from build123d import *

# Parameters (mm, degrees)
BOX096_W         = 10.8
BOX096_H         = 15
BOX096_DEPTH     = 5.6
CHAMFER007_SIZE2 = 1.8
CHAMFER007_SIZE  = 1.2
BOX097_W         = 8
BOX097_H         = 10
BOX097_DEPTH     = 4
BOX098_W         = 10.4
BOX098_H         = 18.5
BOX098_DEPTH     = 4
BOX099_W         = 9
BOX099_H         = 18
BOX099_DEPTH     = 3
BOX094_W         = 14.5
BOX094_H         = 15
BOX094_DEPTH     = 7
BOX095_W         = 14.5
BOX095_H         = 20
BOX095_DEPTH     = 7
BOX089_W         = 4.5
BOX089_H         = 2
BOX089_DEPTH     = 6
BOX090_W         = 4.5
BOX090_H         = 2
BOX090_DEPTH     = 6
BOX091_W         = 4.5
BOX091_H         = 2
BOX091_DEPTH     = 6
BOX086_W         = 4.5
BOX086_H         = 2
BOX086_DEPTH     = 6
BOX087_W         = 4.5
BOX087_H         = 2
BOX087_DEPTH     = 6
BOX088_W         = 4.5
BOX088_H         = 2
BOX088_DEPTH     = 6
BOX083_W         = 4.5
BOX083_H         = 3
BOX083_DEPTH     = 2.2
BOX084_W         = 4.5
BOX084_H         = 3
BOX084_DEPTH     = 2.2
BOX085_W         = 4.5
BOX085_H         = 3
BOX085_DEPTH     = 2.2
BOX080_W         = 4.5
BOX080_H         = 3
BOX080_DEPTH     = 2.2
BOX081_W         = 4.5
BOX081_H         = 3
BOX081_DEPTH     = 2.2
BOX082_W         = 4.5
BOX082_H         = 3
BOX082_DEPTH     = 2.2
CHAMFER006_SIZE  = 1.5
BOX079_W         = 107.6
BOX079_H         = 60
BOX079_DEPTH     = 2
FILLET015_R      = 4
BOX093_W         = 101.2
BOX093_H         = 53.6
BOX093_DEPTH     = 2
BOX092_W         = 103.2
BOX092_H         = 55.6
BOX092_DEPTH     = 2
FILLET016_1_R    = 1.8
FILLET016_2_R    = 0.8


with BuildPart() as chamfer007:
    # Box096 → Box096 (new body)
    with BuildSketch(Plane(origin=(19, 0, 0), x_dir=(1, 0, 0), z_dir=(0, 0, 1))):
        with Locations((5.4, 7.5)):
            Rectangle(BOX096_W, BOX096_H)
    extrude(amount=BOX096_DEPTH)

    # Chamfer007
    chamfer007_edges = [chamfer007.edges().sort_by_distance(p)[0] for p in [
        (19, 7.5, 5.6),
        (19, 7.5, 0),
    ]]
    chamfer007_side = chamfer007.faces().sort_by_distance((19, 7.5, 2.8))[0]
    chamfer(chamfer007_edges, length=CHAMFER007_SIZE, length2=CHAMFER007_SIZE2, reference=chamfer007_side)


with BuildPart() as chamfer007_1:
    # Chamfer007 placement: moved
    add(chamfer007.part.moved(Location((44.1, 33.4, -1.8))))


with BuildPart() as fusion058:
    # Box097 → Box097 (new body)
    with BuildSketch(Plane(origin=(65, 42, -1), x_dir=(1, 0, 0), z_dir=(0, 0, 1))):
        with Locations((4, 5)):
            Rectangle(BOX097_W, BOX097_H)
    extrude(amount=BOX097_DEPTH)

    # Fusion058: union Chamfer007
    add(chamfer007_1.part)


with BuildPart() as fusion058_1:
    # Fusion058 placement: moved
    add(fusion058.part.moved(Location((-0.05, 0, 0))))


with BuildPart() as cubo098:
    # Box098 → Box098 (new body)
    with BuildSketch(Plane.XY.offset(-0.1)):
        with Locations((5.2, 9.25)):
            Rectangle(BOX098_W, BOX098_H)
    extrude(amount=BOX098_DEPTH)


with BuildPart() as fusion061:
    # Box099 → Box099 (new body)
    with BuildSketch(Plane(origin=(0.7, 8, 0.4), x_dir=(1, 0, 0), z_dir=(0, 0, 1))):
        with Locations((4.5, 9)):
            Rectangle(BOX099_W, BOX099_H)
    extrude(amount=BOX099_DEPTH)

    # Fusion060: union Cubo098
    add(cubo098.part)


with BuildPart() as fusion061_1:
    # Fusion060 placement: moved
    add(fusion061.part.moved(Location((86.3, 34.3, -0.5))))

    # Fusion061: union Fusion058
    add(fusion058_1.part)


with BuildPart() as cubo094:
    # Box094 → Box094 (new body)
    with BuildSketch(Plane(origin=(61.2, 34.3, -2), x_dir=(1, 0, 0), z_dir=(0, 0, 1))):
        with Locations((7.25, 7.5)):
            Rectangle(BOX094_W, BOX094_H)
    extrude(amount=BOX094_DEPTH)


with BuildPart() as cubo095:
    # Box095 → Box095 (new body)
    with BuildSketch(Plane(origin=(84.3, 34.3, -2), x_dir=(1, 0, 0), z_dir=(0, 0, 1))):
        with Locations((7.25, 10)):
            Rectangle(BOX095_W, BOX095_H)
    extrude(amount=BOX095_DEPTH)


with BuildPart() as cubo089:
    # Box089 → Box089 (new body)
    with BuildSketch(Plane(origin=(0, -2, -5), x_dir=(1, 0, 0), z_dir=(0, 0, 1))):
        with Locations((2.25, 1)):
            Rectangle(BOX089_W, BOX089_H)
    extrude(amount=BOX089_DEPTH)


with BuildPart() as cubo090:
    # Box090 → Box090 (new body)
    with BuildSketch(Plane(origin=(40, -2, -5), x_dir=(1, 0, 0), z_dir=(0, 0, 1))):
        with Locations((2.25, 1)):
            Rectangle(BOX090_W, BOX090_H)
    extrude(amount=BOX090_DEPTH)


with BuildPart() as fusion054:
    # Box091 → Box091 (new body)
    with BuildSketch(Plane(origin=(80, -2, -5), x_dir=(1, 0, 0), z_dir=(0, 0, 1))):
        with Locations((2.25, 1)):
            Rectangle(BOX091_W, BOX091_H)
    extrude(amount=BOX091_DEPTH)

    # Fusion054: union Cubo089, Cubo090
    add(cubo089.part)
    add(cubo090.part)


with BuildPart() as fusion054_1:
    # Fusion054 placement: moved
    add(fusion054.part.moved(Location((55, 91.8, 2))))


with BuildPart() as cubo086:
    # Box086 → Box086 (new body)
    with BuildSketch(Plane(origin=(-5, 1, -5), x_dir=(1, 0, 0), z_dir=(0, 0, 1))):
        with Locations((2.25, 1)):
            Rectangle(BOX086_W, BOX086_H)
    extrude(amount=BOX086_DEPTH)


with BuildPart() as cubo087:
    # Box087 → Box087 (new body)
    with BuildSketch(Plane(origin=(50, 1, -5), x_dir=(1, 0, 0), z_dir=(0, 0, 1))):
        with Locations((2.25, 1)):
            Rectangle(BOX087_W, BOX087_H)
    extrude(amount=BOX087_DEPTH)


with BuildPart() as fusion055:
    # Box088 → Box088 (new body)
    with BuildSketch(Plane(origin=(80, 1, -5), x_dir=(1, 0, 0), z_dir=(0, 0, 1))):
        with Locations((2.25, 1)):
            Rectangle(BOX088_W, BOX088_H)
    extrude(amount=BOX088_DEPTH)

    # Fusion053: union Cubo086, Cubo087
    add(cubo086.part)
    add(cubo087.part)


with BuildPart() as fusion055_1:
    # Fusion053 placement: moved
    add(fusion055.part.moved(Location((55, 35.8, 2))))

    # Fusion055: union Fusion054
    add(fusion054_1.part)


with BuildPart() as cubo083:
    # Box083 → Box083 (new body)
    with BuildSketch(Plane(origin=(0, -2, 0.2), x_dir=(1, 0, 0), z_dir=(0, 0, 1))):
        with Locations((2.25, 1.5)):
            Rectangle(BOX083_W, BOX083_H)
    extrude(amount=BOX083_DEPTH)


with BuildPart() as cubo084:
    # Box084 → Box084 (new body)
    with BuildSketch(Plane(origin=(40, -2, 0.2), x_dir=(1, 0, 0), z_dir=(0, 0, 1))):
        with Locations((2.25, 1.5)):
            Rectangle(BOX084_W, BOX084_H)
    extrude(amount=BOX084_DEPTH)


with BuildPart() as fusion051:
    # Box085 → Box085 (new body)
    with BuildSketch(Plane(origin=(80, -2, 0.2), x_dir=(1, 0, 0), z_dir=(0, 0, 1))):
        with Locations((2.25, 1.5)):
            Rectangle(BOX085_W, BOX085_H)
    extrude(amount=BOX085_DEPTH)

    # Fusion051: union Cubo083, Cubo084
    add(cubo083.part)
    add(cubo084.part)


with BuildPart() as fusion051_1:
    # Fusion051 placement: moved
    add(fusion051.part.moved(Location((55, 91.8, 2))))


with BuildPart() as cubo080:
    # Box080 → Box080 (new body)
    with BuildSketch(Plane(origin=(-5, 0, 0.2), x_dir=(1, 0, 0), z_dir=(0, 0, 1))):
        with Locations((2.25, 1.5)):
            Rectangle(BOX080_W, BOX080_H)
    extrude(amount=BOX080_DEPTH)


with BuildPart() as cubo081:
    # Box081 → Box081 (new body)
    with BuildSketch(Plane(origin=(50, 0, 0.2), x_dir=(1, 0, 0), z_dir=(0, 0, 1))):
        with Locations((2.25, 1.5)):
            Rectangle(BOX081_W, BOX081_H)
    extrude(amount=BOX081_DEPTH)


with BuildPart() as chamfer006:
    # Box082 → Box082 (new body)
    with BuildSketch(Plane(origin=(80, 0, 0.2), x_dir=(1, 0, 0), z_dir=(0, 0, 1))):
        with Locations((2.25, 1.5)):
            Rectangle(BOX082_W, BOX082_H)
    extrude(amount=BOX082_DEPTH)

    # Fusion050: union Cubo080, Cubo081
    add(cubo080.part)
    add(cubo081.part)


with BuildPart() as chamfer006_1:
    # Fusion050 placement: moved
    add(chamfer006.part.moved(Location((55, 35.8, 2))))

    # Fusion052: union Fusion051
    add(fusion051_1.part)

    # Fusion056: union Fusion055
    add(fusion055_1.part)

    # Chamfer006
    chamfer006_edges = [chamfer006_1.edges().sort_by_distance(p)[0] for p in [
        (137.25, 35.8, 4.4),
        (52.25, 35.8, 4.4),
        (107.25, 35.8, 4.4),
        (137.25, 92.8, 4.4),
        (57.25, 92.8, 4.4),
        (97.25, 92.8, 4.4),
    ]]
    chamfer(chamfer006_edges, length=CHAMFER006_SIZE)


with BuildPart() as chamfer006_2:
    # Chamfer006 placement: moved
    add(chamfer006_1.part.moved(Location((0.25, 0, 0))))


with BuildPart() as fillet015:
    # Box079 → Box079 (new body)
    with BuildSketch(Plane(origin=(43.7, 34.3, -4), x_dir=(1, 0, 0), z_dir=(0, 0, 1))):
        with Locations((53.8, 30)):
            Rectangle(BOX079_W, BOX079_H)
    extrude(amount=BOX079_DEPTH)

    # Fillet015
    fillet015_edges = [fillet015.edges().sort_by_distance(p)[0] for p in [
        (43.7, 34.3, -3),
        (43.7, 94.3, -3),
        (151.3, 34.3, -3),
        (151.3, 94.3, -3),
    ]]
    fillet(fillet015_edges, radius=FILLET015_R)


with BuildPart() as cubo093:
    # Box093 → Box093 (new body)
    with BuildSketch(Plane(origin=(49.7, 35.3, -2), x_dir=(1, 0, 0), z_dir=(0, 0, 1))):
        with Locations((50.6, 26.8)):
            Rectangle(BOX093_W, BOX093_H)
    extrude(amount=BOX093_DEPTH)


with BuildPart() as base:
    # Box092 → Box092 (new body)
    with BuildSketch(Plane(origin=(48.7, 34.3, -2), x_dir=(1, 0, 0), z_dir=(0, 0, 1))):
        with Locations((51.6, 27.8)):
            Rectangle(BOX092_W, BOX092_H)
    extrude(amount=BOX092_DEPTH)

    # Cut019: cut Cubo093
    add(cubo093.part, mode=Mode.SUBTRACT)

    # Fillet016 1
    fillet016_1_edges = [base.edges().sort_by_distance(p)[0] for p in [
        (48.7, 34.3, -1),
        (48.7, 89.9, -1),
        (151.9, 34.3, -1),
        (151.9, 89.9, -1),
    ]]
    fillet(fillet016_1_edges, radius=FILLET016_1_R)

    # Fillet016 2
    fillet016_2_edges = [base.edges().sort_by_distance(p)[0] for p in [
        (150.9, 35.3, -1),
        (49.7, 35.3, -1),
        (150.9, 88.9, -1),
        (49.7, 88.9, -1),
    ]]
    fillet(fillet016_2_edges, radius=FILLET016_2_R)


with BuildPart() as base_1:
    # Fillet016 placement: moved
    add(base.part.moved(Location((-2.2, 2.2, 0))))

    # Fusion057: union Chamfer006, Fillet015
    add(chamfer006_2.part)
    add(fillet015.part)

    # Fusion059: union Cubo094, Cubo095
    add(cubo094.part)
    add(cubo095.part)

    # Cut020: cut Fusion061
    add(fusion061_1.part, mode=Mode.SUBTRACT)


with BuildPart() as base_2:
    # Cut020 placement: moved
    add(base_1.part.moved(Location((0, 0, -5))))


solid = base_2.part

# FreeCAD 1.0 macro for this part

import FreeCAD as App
import Part
import Sketcher

V = App.Vector


def edges_at(feature, points):
    """Names of the edges that pass closest to the given points."""
    edges = feature.Shape.Edges
    near = lambda p: min(range(len(edges)), key=lambda i: edges[i].distToShape(Part.Vertex(*p))[0])
    return sorted({f"Edge{near(p) + 1}" for p in points})


def add_polygon(sketch, points):
    """Adds a closed chain of lines whose ends are joined by coincident constraints."""
    first, n = sketch.GeometryCount, len(points)
    for a, b in zip(points, points[1:] + points[:1]):
        sketch.addGeometry(Part.LineSegment(App.Vector(*a, 0), App.Vector(*b, 0)), False)
    for i in range(n):
        sketch.addConstraint(Sketcher.Constraint("Coincident", first + i, 2, first + (i + 1) % n, 1))

doc = App.newDocument("Part")
body = doc.addObject("PartDesign::Body", "Body")

sketch1 = doc.addObject("Sketcher::SketchObject", "Sketch")
body.addObject(sketch1)
sketch1.AttachmentSupport = (doc.XY_Plane, [""])
sketch1.MapMode = "FlatFace"
add_polygon(sketch1, [(19, 15), (19, 0), (30, 0), (30, 15)])
sketch1.addConstraint([
    Sketcher.Constraint("Vertical", 0),
    Sketcher.Constraint("Horizontal", 1),
    Sketcher.Constraint("Vertical", 2),
    Sketcher.Constraint("Horizontal", 3),
    Sketcher.Constraint("PointOnObject", 0, 2, -1),
    Sketcher.Constraint("DistanceY", 0, 2, 0, 1, 15.0),
    Sketcher.Constraint("DistanceX", 1, 1, 1, 2, 10.8),
    Sketcher.Constraint("DistanceX", -1, 1, 0, 2, 19.0),
])
pad1 = doc.addObject("PartDesign::Pad", "Pad")
body.addObject(pad1)
pad1.Profile = sketch1
pad1.Length = 5.6
doc.recompute()

chamfer = doc.addObject("PartDesign::Chamfer", "Chamfer")
body.addObject(chamfer)
chamfer.Base = (pad1, edges_at(pad1, [(19, 7.5, 5.6), (19, 7.5, 0)]))
chamfer.ChamferType = "Two distances"
chamfer.Size = 1.2
chamfer.Size2 = 1.8
body2 = doc.addObject("PartDesign::Body", "Body001")
doc.recompute()

body.Placement = App.Placement(V(44.1, 33.4, -1.8), App.Rotation(V(0, 0, 1), 0))
boolean = doc.addObject("PartDesign::Boolean", "Boolean")
body2.addObject(boolean)
boolean.Type = "Fuse"
boolean.addObjects([body])
body3 = doc.addObject("PartDesign::Body", "Body002")

sketch2 = doc.addObject("Sketcher::SketchObject", "Sketch001")
body3.addObject(sketch2)
sketch2.AttachmentSupport = (doc.getObject("XY_Plane002"), [""])
sketch2.MapMode = "FlatFace"
sketch2.AttachmentOffset = App.Placement(V(0, 0, -1), App.Rotation())
add_polygon(sketch2, [(65, 52), (65, 42), (73, 42), (73, 52)])
sketch2.addConstraint([
    Sketcher.Constraint("Vertical", 0),
    Sketcher.Constraint("Horizontal", 1),
    Sketcher.Constraint("Vertical", 2),
    Sketcher.Constraint("Horizontal", 3),
    Sketcher.Constraint("DistanceX", 1, 1, 1, 2, 8.0),
    Sketcher.Constraint("DistanceY", 0, 2, 0, 1, 10.0),
    Sketcher.Constraint("DistanceX", -1, 1, 0, 2, 65.0),
    Sketcher.Constraint("DistanceY", -1, 1, 0, 2, 42.0),
])
pad2 = doc.addObject("PartDesign::Pad", "Pad001")
body3.addObject(pad2)
pad2.Profile = sketch2
pad2.Length = 4
doc.recompute()

boolean2 = doc.addObject("PartDesign::Boolean", "Boolean001")
body3.addObject(boolean2)
boolean2.Type = "Fuse"
boolean2.addObjects([body2])
body4 = doc.addObject("PartDesign::Body", "Body003")
doc.recompute()

body3.Placement = App.Placement(V(-0.05, 0, 0), App.Rotation(V(0, 0, 1), 0))
boolean3 = doc.addObject("PartDesign::Boolean", "Boolean002")
body4.addObject(boolean3)
boolean3.Type = "Fuse"
boolean3.addObjects([body3])
body5 = doc.addObject("PartDesign::Body", "Body004")

sketch3 = doc.addObject("Sketcher::SketchObject", "Sketch002")
body5.addObject(sketch3)
sketch3.AttachmentSupport = (doc.getObject("XY_Plane004"), [""])
sketch3.MapMode = "FlatFace"
sketch3.AttachmentOffset = App.Placement(V(0, 0, -0.1), App.Rotation())
add_polygon(sketch3, [(0, 18), (0, 0), (10, 0), (10, 18)])
sketch3.addConstraint([
    Sketcher.Constraint("Vertical", 0),
    Sketcher.Constraint("Horizontal", 1),
    Sketcher.Constraint("Vertical", 2),
    Sketcher.Constraint("Horizontal", 3),
    Sketcher.Constraint("Coincident", 0, 2, -1, 1),
    Sketcher.Constraint("DistanceX", 1, 1, 1, 2, 10.4),
    Sketcher.Constraint("DistanceY", 0, 2, 0, 1, 18.5),
])
pad3 = doc.addObject("PartDesign::Pad", "Pad002")
body5.addObject(pad3)
pad3.Profile = sketch3
pad3.Length = 4
body6 = doc.addObject("PartDesign::Body", "Body005")

sketch4 = doc.addObject("Sketcher::SketchObject", "Sketch003")
body6.addObject(sketch4)
sketch4.AttachmentSupport = (doc.getObject("XY_Plane005"), [""])
sketch4.MapMode = "FlatFace"
sketch4.AttachmentOffset = App.Placement(V(0, 0, 0.4), App.Rotation())
add_polygon(sketch4, [(1, 26), (1, 8), (10, 8), (10, 26)])
sketch4.addConstraint([
    Sketcher.Constraint("Vertical", 0),
    Sketcher.Constraint("Horizontal", 1),
    Sketcher.Constraint("Vertical", 2),
    Sketcher.Constraint("Horizontal", 3),
    Sketcher.Constraint("DistanceX", 1, 1, 1, 2, 9.0),
    Sketcher.Constraint("DistanceY", 0, 2, 0, 1, 18.0),
    Sketcher.Constraint("DistanceY", -1, 1, 0, 2, 8.0),
    Sketcher.Constraint("DistanceX", -1, 1, 0, 2, 0.7),
])
pad4 = doc.addObject("PartDesign::Pad", "Pad003")
body6.addObject(pad4)
pad4.Profile = sketch4
pad4.Length = 3
doc.recompute()

boolean4 = doc.addObject("PartDesign::Boolean", "Boolean003")
body6.addObject(boolean4)
boolean4.Type = "Fuse"
boolean4.addObjects([body5])
body7 = doc.addObject("PartDesign::Body", "Body006")
body7.AllowCompound = True
doc.recompute()

body6.Placement = App.Placement(V(86.3, 34.3, -0.5), App.Rotation(V(0, 0, 1), 0))
boolean5 = doc.addObject("PartDesign::Boolean", "Boolean004")
body7.addObject(boolean5)
boolean5.Type = "Fuse"
boolean5.addObjects([body6])
doc.recompute()

boolean6 = doc.addObject("PartDesign::Boolean", "Boolean005")
body7.addObject(boolean6)
boolean6.Type = "Fuse"
boolean6.addObjects([body4])
body8 = doc.addObject("PartDesign::Body", "Body007")

sketch5 = doc.addObject("Sketcher::SketchObject", "Sketch004")
body8.addObject(sketch5)
sketch5.AttachmentSupport = (doc.getObject("XY_Plane007"), [""])
sketch5.MapMode = "FlatFace"
sketch5.AttachmentOffset = App.Placement(V(0, 0, -2), App.Rotation())
add_polygon(sketch5, [(61, 49), (61, 34), (76, 34), (76, 49)])
sketch5.addConstraint([
    Sketcher.Constraint("Vertical", 0),
    Sketcher.Constraint("Horizontal", 1),
    Sketcher.Constraint("Vertical", 2),
    Sketcher.Constraint("Horizontal", 3),
    Sketcher.Constraint("DistanceY", 0, 2, 0, 1, 15.0),
    Sketcher.Constraint("DistanceX", 1, 1, 1, 2, 14.5),
    Sketcher.Constraint("DistanceX", -1, 1, 0, 2, 61.2),
    Sketcher.Constraint("DistanceY", -1, 1, 0, 2, 34.3),
])
pad5 = doc.addObject("PartDesign::Pad", "Pad004")
body8.addObject(pad5)
pad5.Profile = sketch5
pad5.Length = 7
body9 = doc.addObject("PartDesign::Body", "Body008")

sketch6 = doc.addObject("Sketcher::SketchObject", "Sketch005")
body9.addObject(sketch6)
sketch6.AttachmentSupport = (doc.getObject("XY_Plane008"), [""])
sketch6.MapMode = "FlatFace"
sketch6.AttachmentOffset = App.Placement(V(0, 0, -2), App.Rotation())
add_polygon(sketch6, [(84, 54), (84, 34), (99, 34), (99, 54)])
sketch6.addConstraint([
    Sketcher.Constraint("Vertical", 0),
    Sketcher.Constraint("Horizontal", 1),
    Sketcher.Constraint("Vertical", 2),
    Sketcher.Constraint("Horizontal", 3),
    Sketcher.Constraint("DistanceY", 0, 2, 0, 1, 20.0),
    Sketcher.Constraint("DistanceX", 1, 1, 1, 2, 14.5),
    Sketcher.Constraint("DistanceX", -1, 1, 0, 2, 84.3),
    Sketcher.Constraint("DistanceY", -1, 1, 0, 2, 34.3),
])
pad6 = doc.addObject("PartDesign::Pad", "Pad005")
body9.addObject(pad6)
pad6.Profile = sketch6
pad6.Length = 7
body10 = doc.addObject("PartDesign::Body", "Body009")

sketch7 = doc.addObject("Sketcher::SketchObject", "Sketch006")
body10.addObject(sketch7)
sketch7.AttachmentSupport = (doc.getObject("XY_Plane009"), [""])
sketch7.MapMode = "FlatFace"
sketch7.AttachmentOffset = App.Placement(V(0, 0, -5), App.Rotation())
add_polygon(sketch7, [(0, 0), (0, -2), (4.5, -2), (4.5, 0)])
sketch7.addConstraint([
    Sketcher.Constraint("Vertical", 0),
    Sketcher.Constraint("Horizontal", 1),
    Sketcher.Constraint("Vertical", 2),
    Sketcher.Constraint("Horizontal", 3),
    Sketcher.Constraint("Coincident", 3, 2, -1, 1),
    Sketcher.Constraint("DistanceY", 0, 2, 0, 1, 2.0),
    Sketcher.Constraint("DistanceX", 1, 1, 1, 2, 4.5),
])
pad7 = doc.addObject("PartDesign::Pad", "Pad006")
body10.addObject(pad7)
pad7.Profile = sketch7
pad7.Length = 6
body11 = doc.addObject("PartDesign::Body", "Body010")

sketch8 = doc.addObject("Sketcher::SketchObject", "Sketch007")
body11.addObject(sketch8)
sketch8.AttachmentSupport = (doc.getObject("XY_Plane010"), [""])
sketch8.MapMode = "FlatFace"
sketch8.AttachmentOffset = App.Placement(V(0, 0, -5), App.Rotation())
add_polygon(sketch8, [(40, 0), (40, -2), (44.5, -2), (44.5, 0)])
sketch8.addConstraint([
    Sketcher.Constraint("Vertical", 0),
    Sketcher.Constraint("Horizontal", 1),
    Sketcher.Constraint("Vertical", 2),
    Sketcher.Constraint("Horizontal", 3),
    Sketcher.Constraint("PointOnObject", 2, 2, -1),
    Sketcher.Constraint("DistanceY", 0, 2, 0, 1, 2.0),
    Sketcher.Constraint("DistanceX", 1, 1, 1, 2, 4.5),
    Sketcher.Constraint("DistanceX", -1, 1, 0, 2, 40.0),
])
pad8 = doc.addObject("PartDesign::Pad", "Pad007")
body11.addObject(pad8)
pad8.Profile = sketch8
pad8.Length = 6
body12 = doc.addObject("PartDesign::Body", "Body011")
body12.AllowCompound = True

sketch9 = doc.addObject("Sketcher::SketchObject", "Sketch008")
body12.addObject(sketch9)
sketch9.AttachmentSupport = (doc.getObject("XY_Plane011"), [""])
sketch9.MapMode = "FlatFace"
sketch9.AttachmentOffset = App.Placement(V(0, 0, -5), App.Rotation())
add_polygon(sketch9, [(80, 0), (80, -2), (84.5, -2), (84.5, 0)])
sketch9.addConstraint([
    Sketcher.Constraint("Vertical", 0),
    Sketcher.Constraint("Horizontal", 1),
    Sketcher.Constraint("Vertical", 2),
    Sketcher.Constraint("Horizontal", 3),
    Sketcher.Constraint("PointOnObject", 2, 2, -1),
    Sketcher.Constraint("DistanceY", 0, 2, 0, 1, 2.0),
    Sketcher.Constraint("DistanceX", 1, 1, 1, 2, 4.5),
    Sketcher.Constraint("DistanceX", -1, 1, 0, 2, 80.0),
])
pad9 = doc.addObject("PartDesign::Pad", "Pad008")
body12.addObject(pad9)
pad9.Profile = sketch9
pad9.Length = 6
doc.recompute()

boolean7 = doc.addObject("PartDesign::Boolean", "Boolean006")
body12.addObject(boolean7)
boolean7.Type = "Fuse"
boolean7.addObjects([body10])
doc.recompute()

boolean8 = doc.addObject("PartDesign::Boolean", "Boolean007")
body12.addObject(boolean8)
boolean8.Type = "Fuse"
boolean8.addObjects([body11])
body13 = doc.addObject("PartDesign::Body", "Body012")
body13.AllowCompound = True
doc.recompute()

body12.Placement = App.Placement(V(55, 91.8, 2), App.Rotation(V(0, 0, 1), 0))
boolean9 = doc.addObject("PartDesign::Boolean", "Boolean008")
body13.addObject(boolean9)
boolean9.Type = "Fuse"
boolean9.addObjects([body12])
body14 = doc.addObject("PartDesign::Body", "Body013")

sketch10 = doc.addObject("Sketcher::SketchObject", "Sketch009")
body14.addObject(sketch10)
sketch10.AttachmentSupport = (doc.getObject("XY_Plane013"), [""])
sketch10.MapMode = "FlatFace"
sketch10.AttachmentOffset = App.Placement(V(0, 0, -5), App.Rotation())
add_polygon(sketch10, [(-5, 3), (-5, 1), (-0.5, 1), (-0.5, 3)])
sketch10.addConstraint([
    Sketcher.Constraint("Vertical", 0),
    Sketcher.Constraint("Horizontal", 1),
    Sketcher.Constraint("Vertical", 2),
    Sketcher.Constraint("Horizontal", 3),
    Sketcher.Constraint("DistanceY", 0, 2, 0, 1, 2.0),
    Sketcher.Constraint("DistanceX", 1, 1, 1, 2, 4.5),
    Sketcher.Constraint("DistanceX", 0, 2, -1, 1, 5.0),
    Sketcher.Constraint("DistanceY", -1, 1, 0, 2, 1.0),
])
pad10 = doc.addObject("PartDesign::Pad", "Pad009")
body14.addObject(pad10)
pad10.Profile = sketch10
pad10.Length = 6
body15 = doc.addObject("PartDesign::Body", "Body014")

sketch11 = doc.addObject("Sketcher::SketchObject", "Sketch010")
body15.addObject(sketch11)
sketch11.AttachmentSupport = (doc.getObject("XY_Plane014"), [""])
sketch11.MapMode = "FlatFace"
sketch11.AttachmentOffset = App.Placement(V(0, 0, -5), App.Rotation())
add_polygon(sketch11, [(50, 3), (50, 1), (54.5, 1), (54.5, 3)])
sketch11.addConstraint([
    Sketcher.Constraint("Vertical", 0),
    Sketcher.Constraint("Horizontal", 1),
    Sketcher.Constraint("Vertical", 2),
    Sketcher.Constraint("Horizontal", 3),
    Sketcher.Constraint("DistanceY", 0, 2, 0, 1, 2.0),
    Sketcher.Constraint("DistanceX", 1, 1, 1, 2, 4.5),
    Sketcher.Constraint("DistanceX", -1, 1, 0, 2, 50.0),
    Sketcher.Constraint("DistanceY", -1, 1, 0, 2, 1.0),
])
pad11 = doc.addObject("PartDesign::Pad", "Pad010")
body15.addObject(pad11)
pad11.Profile = sketch11
pad11.Length = 6
body16 = doc.addObject("PartDesign::Body", "Body015")
body16.AllowCompound = True

sketch12 = doc.addObject("Sketcher::SketchObject", "Sketch011")
body16.addObject(sketch12)
sketch12.AttachmentSupport = (doc.getObject("XY_Plane015"), [""])
sketch12.MapMode = "FlatFace"
sketch12.AttachmentOffset = App.Placement(V(0, 0, -5), App.Rotation())
add_polygon(sketch12, [(80, 3), (80, 1), (84.5, 1), (84.5, 3)])
sketch12.addConstraint([
    Sketcher.Constraint("Vertical", 0),
    Sketcher.Constraint("Horizontal", 1),
    Sketcher.Constraint("Vertical", 2),
    Sketcher.Constraint("Horizontal", 3),
    Sketcher.Constraint("DistanceY", 0, 2, 0, 1, 2.0),
    Sketcher.Constraint("DistanceX", 1, 1, 1, 2, 4.5),
    Sketcher.Constraint("DistanceX", -1, 1, 0, 2, 80.0),
    Sketcher.Constraint("DistanceY", -1, 1, 0, 2, 1.0),
])
pad12 = doc.addObject("PartDesign::Pad", "Pad011")
body16.addObject(pad12)
pad12.Profile = sketch12
pad12.Length = 6
doc.recompute()

boolean10 = doc.addObject("PartDesign::Boolean", "Boolean009")
body16.addObject(boolean10)
boolean10.Type = "Fuse"
boolean10.addObjects([body14])
doc.recompute()

boolean11 = doc.addObject("PartDesign::Boolean", "Boolean010")
body16.addObject(boolean11)
boolean11.Type = "Fuse"
boolean11.addObjects([body15])
body17 = doc.addObject("PartDesign::Body", "Body016")
body17.AllowCompound = True
doc.recompute()

body16.Placement = App.Placement(V(55, 35.8, 2), App.Rotation(V(0, 0, 1), 0))
boolean12 = doc.addObject("PartDesign::Boolean", "Boolean011")
body17.addObject(boolean12)
boolean12.Type = "Fuse"
boolean12.addObjects([body16])
doc.recompute()

boolean13 = doc.addObject("PartDesign::Boolean", "Boolean012")
body17.addObject(boolean13)
boolean13.Type = "Fuse"
boolean13.addObjects([body13])
body18 = doc.addObject("PartDesign::Body", "Body017")

sketch13 = doc.addObject("Sketcher::SketchObject", "Sketch012")
body18.addObject(sketch13)
sketch13.AttachmentSupport = (doc.getObject("XY_Plane017"), [""])
sketch13.MapMode = "FlatFace"
sketch13.AttachmentOffset = App.Placement(V(0, 0, 0.2), App.Rotation())
add_polygon(sketch13, [(0, 1), (0, -2), (4.5, -2), (4.5, 1)])
sketch13.addConstraint([
    Sketcher.Constraint("Vertical", 0),
    Sketcher.Constraint("Horizontal", 1),
    Sketcher.Constraint("Vertical", 2),
    Sketcher.Constraint("Horizontal", 3),
    Sketcher.Constraint("PointOnObject", 0, 2, -2),
    Sketcher.Constraint("DistanceY", 0, 2, 0, 1, 3.0),
    Sketcher.Constraint("DistanceX", 1, 1, 1, 2, 4.5),
    Sketcher.Constraint("DistanceY", 0, 2, -1, 1, 2.0),
])
pad13 = doc.addObject("PartDesign::Pad", "Pad012")
body18.addObject(pad13)
pad13.Profile = sketch13
pad13.Length = 2.2
body19 = doc.addObject("PartDesign::Body", "Body018")

sketch14 = doc.addObject("Sketcher::SketchObject", "Sketch013")
body19.addObject(sketch14)
sketch14.AttachmentSupport = (doc.getObject("XY_Plane018"), [""])
sketch14.MapMode = "FlatFace"
sketch14.AttachmentOffset = App.Placement(V(0, 0, 0.2), App.Rotation())
add_polygon(sketch14, [(40, 1), (40, -2), (44.5, -2), (44.5, 1)])
sketch14.addConstraint([
    Sketcher.Constraint("Vertical", 0),
    Sketcher.Constraint("Horizontal", 1),
    Sketcher.Constraint("Vertical", 2),
    Sketcher.Constraint("Horizontal", 3),
    Sketcher.Constraint("DistanceY", 0, 2, 0, 1, 3.0),
    Sketcher.Constraint("DistanceX", 1, 1, 1, 2, 4.5),
    Sketcher.Constraint("DistanceX", -1, 1, 0, 2, 40.0),
    Sketcher.Constraint("DistanceY", 0, 2, -1, 1, 2.0),
])
pad14 = doc.addObject("PartDesign::Pad", "Pad013")
body19.addObject(pad14)
pad14.Profile = sketch14
pad14.Length = 2.2
body20 = doc.addObject("PartDesign::Body", "Body019")
body20.AllowCompound = True

sketch15 = doc.addObject("Sketcher::SketchObject", "Sketch014")
body20.addObject(sketch15)
sketch15.AttachmentSupport = (doc.getObject("XY_Plane019"), [""])
sketch15.MapMode = "FlatFace"
sketch15.AttachmentOffset = App.Placement(V(0, 0, 0.2), App.Rotation())
add_polygon(sketch15, [(80, 1), (80, -2), (84.5, -2), (84.5, 1)])
sketch15.addConstraint([
    Sketcher.Constraint("Vertical", 0),
    Sketcher.Constraint("Horizontal", 1),
    Sketcher.Constraint("Vertical", 2),
    Sketcher.Constraint("Horizontal", 3),
    Sketcher.Constraint("DistanceY", 0, 2, 0, 1, 3.0),
    Sketcher.Constraint("DistanceX", 1, 1, 1, 2, 4.5),
    Sketcher.Constraint("DistanceX", -1, 1, 0, 2, 80.0),
    Sketcher.Constraint("DistanceY", 0, 2, -1, 1, 2.0),
])
pad15 = doc.addObject("PartDesign::Pad", "Pad014")
body20.addObject(pad15)
pad15.Profile = sketch15
pad15.Length = 2.2
doc.recompute()

boolean14 = doc.addObject("PartDesign::Boolean", "Boolean013")
body20.addObject(boolean14)
boolean14.Type = "Fuse"
boolean14.addObjects([body18])
doc.recompute()

boolean15 = doc.addObject("PartDesign::Boolean", "Boolean014")
body20.addObject(boolean15)
boolean15.Type = "Fuse"
boolean15.addObjects([body19])
body21 = doc.addObject("PartDesign::Body", "Body020")
body21.AllowCompound = True
doc.recompute()

body20.Placement = App.Placement(V(55, 91.8, 2), App.Rotation(V(0, 0, 1), 0))
boolean16 = doc.addObject("PartDesign::Boolean", "Boolean015")
body21.addObject(boolean16)
boolean16.Type = "Fuse"
boolean16.addObjects([body20])
body22 = doc.addObject("PartDesign::Body", "Body021")

sketch16 = doc.addObject("Sketcher::SketchObject", "Sketch015")
body22.addObject(sketch16)
sketch16.AttachmentSupport = (doc.getObject("XY_Plane021"), [""])
sketch16.MapMode = "FlatFace"
sketch16.AttachmentOffset = App.Placement(V(0, 0, 0.2), App.Rotation())
add_polygon(sketch16, [(-5, 3), (-5, 0), (-0.5, 0), (-0.5, 3)])
sketch16.addConstraint([
    Sketcher.Constraint("Vertical", 0),
    Sketcher.Constraint("Horizontal", 1),
    Sketcher.Constraint("Vertical", 2),
    Sketcher.Constraint("Horizontal", 3),
    Sketcher.Constraint("PointOnObject", 0, 2, -1),
    Sketcher.Constraint("DistanceY", 0, 2, 0, 1, 3.0),
    Sketcher.Constraint("DistanceX", 1, 1, 1, 2, 4.5),
    Sketcher.Constraint("DistanceX", 0, 2, -1, 1, 5.0),
])
pad16 = doc.addObject("PartDesign::Pad", "Pad015")
body22.addObject(pad16)
pad16.Profile = sketch16
pad16.Length = 2.2
body23 = doc.addObject("PartDesign::Body", "Body022")

sketch17 = doc.addObject("Sketcher::SketchObject", "Sketch016")
body23.addObject(sketch17)
sketch17.AttachmentSupport = (doc.getObject("XY_Plane022"), [""])
sketch17.MapMode = "FlatFace"
sketch17.AttachmentOffset = App.Placement(V(0, 0, 0.2), App.Rotation())
add_polygon(sketch17, [(50, 3), (50, 0), (54.5, 0), (54.5, 3)])
sketch17.addConstraint([
    Sketcher.Constraint("Vertical", 0),
    Sketcher.Constraint("Horizontal", 1),
    Sketcher.Constraint("Vertical", 2),
    Sketcher.Constraint("Horizontal", 3),
    Sketcher.Constraint("PointOnObject", 0, 2, -1),
    Sketcher.Constraint("DistanceY", 0, 2, 0, 1, 3.0),
    Sketcher.Constraint("DistanceX", 1, 1, 1, 2, 4.5),
    Sketcher.Constraint("DistanceX", -1, 1, 0, 2, 50.0),
])
pad17 = doc.addObject("PartDesign::Pad", "Pad016")
body23.addObject(pad17)
pad17.Profile = sketch17
pad17.Length = 2.2
body24 = doc.addObject("PartDesign::Body", "Body023")
body24.AllowCompound = True

sketch18 = doc.addObject("Sketcher::SketchObject", "Sketch017")
body24.addObject(sketch18)
sketch18.AttachmentSupport = (doc.getObject("XY_Plane023"), [""])
sketch18.MapMode = "FlatFace"
sketch18.AttachmentOffset = App.Placement(V(0, 0, 0.2), App.Rotation())
add_polygon(sketch18, [(80, 3), (80, 0), (84.5, 0), (84.5, 3)])
sketch18.addConstraint([
    Sketcher.Constraint("Vertical", 0),
    Sketcher.Constraint("Horizontal", 1),
    Sketcher.Constraint("Vertical", 2),
    Sketcher.Constraint("Horizontal", 3),
    Sketcher.Constraint("PointOnObject", 0, 2, -1),
    Sketcher.Constraint("DistanceY", 0, 2, 0, 1, 3.0),
    Sketcher.Constraint("DistanceX", 1, 1, 1, 2, 4.5),
    Sketcher.Constraint("DistanceX", -1, 1, 0, 2, 80.0),
])
pad18 = doc.addObject("PartDesign::Pad", "Pad017")
body24.addObject(pad18)
pad18.Profile = sketch18
pad18.Length = 2.2
doc.recompute()

boolean17 = doc.addObject("PartDesign::Boolean", "Boolean016")
body24.addObject(boolean17)
boolean17.Type = "Fuse"
boolean17.addObjects([body22])
doc.recompute()

boolean18 = doc.addObject("PartDesign::Boolean", "Boolean017")
body24.addObject(boolean18)
boolean18.Type = "Fuse"
boolean18.addObjects([body23])
body25 = doc.addObject("PartDesign::Body", "Body024")
body25.AllowCompound = True
doc.recompute()

body24.Placement = App.Placement(V(55, 35.8, 2), App.Rotation(V(0, 0, 1), 0))
boolean19 = doc.addObject("PartDesign::Boolean", "Boolean018")
body25.addObject(boolean19)
boolean19.Type = "Fuse"
boolean19.addObjects([body24])
doc.recompute()

boolean20 = doc.addObject("PartDesign::Boolean", "Boolean019")
body25.addObject(boolean20)
boolean20.Type = "Fuse"
boolean20.addObjects([body21])
doc.recompute()

boolean21 = doc.addObject("PartDesign::Boolean", "Boolean020")
body25.addObject(boolean21)
boolean21.Type = "Fuse"
boolean21.addObjects([body17])
doc.recompute()

chamfer2 = doc.addObject("PartDesign::Chamfer", "Chamfer001")
body25.addObject(chamfer2)
chamfer2.Base = (boolean21, edges_at(boolean21, [
    (137.25, 35.8, 4.4),
    (52.25, 35.8, 4.4),
    (107.25, 35.8, 4.4),
    (137.25, 92.8, 4.4),
    (57.25, 92.8, 4.4),
    (97.25, 92.8, 4.4),
]))
chamfer2.Size = 1.5
body26 = doc.addObject("PartDesign::Body", "Body025")
body26.AllowCompound = True
doc.recompute()

body25.Placement = App.Placement(V(0.25, 0, 0), App.Rotation(V(0, 0, 1), 0))
boolean22 = doc.addObject("PartDesign::Boolean", "Boolean021")
body26.addObject(boolean22)
boolean22.Type = "Fuse"
boolean22.addObjects([body25])
body27 = doc.addObject("PartDesign::Body", "Body026")

sketch19 = doc.addObject("Sketcher::SketchObject", "Sketch018")
body27.addObject(sketch19)
sketch19.AttachmentSupport = (doc.getObject("XY_Plane026"), [""])
sketch19.MapMode = "FlatFace"
sketch19.AttachmentOffset = App.Placement(V(0, 0, -4), App.Rotation())
add_polygon(sketch19, [(44, 94), (44, 34), (151, 34), (151, 94)])
sketch19.addConstraint([
    Sketcher.Constraint("Vertical", 0),
    Sketcher.Constraint("Horizontal", 1),
    Sketcher.Constraint("Vertical", 2),
    Sketcher.Constraint("Horizontal", 3),
    Sketcher.Constraint("DistanceY", 0, 2, 0, 1, 60.0),
    Sketcher.Constraint("DistanceX", 1, 1, 1, 2, 107.6),
    Sketcher.Constraint("DistanceX", -1, 1, 0, 2, 43.7),
    Sketcher.Constraint("DistanceY", -1, 1, 0, 2, 34.3),
])
pad19 = doc.addObject("PartDesign::Pad", "Pad018")
body27.addObject(pad19)
pad19.Profile = sketch19
pad19.Length = 2
doc.recompute()

fillet = doc.addObject("PartDesign::Fillet", "Fillet")
body27.addObject(fillet)
fillet.Base = (pad19, edges_at(pad19, [
    (43.7, 34.3, -3),
    (43.7, 94.3, -3),
    (151.3, 34.3, -3),
    (151.3, 94.3, -3),
]))
fillet.Radius = 4
body28 = doc.addObject("PartDesign::Body", "Body027")

sketch20 = doc.addObject("Sketcher::SketchObject", "Sketch019")
body28.addObject(sketch20)
sketch20.AttachmentSupport = (doc.getObject("XY_Plane027"), [""])
sketch20.MapMode = "FlatFace"
sketch20.AttachmentOffset = App.Placement(V(0, 0, -2), App.Rotation())
add_polygon(sketch20, [(50, 89), (50, 35), (151, 35), (151, 89)])
sketch20.addConstraint([
    Sketcher.Constraint("Vertical", 0),
    Sketcher.Constraint("Horizontal", 1),
    Sketcher.Constraint("Vertical", 2),
    Sketcher.Constraint("Horizontal", 3),
    Sketcher.Constraint("DistanceX", 1, 1, 1, 2, 101.2),
    Sketcher.Constraint("DistanceY", 0, 2, 0, 1, 53.6),
    Sketcher.Constraint("DistanceX", -1, 1, 0, 2, 49.7),
    Sketcher.Constraint("DistanceY", -1, 1, 0, 2, 35.3),
])
pad20 = doc.addObject("PartDesign::Pad", "Pad019")
body28.addObject(pad20)
pad20.Profile = sketch20
pad20.Length = 2
body29 = doc.addObject("PartDesign::Body", "Body028")

sketch21 = doc.addObject("Sketcher::SketchObject", "Sketch020")
body29.addObject(sketch21)
sketch21.AttachmentSupport = (doc.getObject("XY_Plane028"), [""])
sketch21.MapMode = "FlatFace"
sketch21.AttachmentOffset = App.Placement(V(0, 0, -2), App.Rotation())
add_polygon(sketch21, [(49, 90), (49, 34), (152, 34), (152, 90)])
sketch21.addConstraint([
    Sketcher.Constraint("Vertical", 0),
    Sketcher.Constraint("Horizontal", 1),
    Sketcher.Constraint("Vertical", 2),
    Sketcher.Constraint("Horizontal", 3),
    Sketcher.Constraint("DistanceX", 1, 1, 1, 2, 103.2),
    Sketcher.Constraint("DistanceY", 0, 2, 0, 1, 55.6),
    Sketcher.Constraint("DistanceX", -1, 1, 0, 2, 48.7),
    Sketcher.Constraint("DistanceY", -1, 1, 0, 2, 34.3),
])
pad21 = doc.addObject("PartDesign::Pad", "Pad020")
body29.addObject(pad21)
pad21.Profile = sketch21
pad21.Length = 2
doc.recompute()

boolean23 = doc.addObject("PartDesign::Boolean", "Boolean022")
body29.addObject(boolean23)
boolean23.Type = "Cut"
boolean23.addObjects([body28])
doc.recompute()

fillet2 = doc.addObject("PartDesign::Fillet", "Fillet001")
body29.addObject(fillet2)
fillet2.Base = (boolean23, edges_at(boolean23, [
    (48.7, 34.3, -1),
    (48.7, 89.9, -1),
    (151.9, 34.3, -1),
    (151.9, 89.9, -1),
]))
fillet2.Radius = 1.8
doc.recompute()

fillet3 = doc.addObject("PartDesign::Fillet", "Fillet002")
body29.addObject(fillet3)
fillet3.Base = (fillet2, edges_at(fillet2, [
    (150.9, 35.3, -1),
    (49.7, 35.3, -1),
    (150.9, 88.9, -1),
    (49.7, 88.9, -1),
]))
fillet3.Radius = 0.8
body30 = doc.addObject("PartDesign::Body", "Body029")
doc.recompute()

body29.Placement = App.Placement(V(-2.2, 2.2, 0), App.Rotation(V(0, 0, 1), 0))
boolean24 = doc.addObject("PartDesign::Boolean", "Boolean023")
body30.addObject(boolean24)
boolean24.Type = "Fuse"
boolean24.addObjects([body29])
doc.recompute()

boolean25 = doc.addObject("PartDesign::Boolean", "Boolean024")
body30.addObject(boolean25)
boolean25.Type = "Fuse"
boolean25.addObjects([body26])
doc.recompute()

boolean26 = doc.addObject("PartDesign::Boolean", "Boolean025")
body30.addObject(boolean26)
boolean26.Type = "Fuse"
boolean26.addObjects([body27])
doc.recompute()

boolean27 = doc.addObject("PartDesign::Boolean", "Boolean026")
body30.addObject(boolean27)
boolean27.Type = "Fuse"
boolean27.addObjects([body8])
doc.recompute()

boolean28 = doc.addObject("PartDesign::Boolean", "Boolean027")
body30.addObject(boolean28)
boolean28.Type = "Fuse"
boolean28.addObjects([body9])
doc.recompute()

boolean29 = doc.addObject("PartDesign::Boolean", "Boolean028")
body30.addObject(boolean29)
boolean29.Type = "Cut"
boolean29.addObjects([body7])
body31 = doc.addObject("PartDesign::Body", "Body030")
doc.recompute()

body30.Placement = App.Placement(V(0, 0, -5), App.Rotation(V(0, 0, 1), 0))
boolean30 = doc.addObject("PartDesign::Boolean", "Boolean029")
body31.addObject(boolean30)
boolean30.Type = "Fuse"
boolean30.addObjects([body30])

doc.recompute()
